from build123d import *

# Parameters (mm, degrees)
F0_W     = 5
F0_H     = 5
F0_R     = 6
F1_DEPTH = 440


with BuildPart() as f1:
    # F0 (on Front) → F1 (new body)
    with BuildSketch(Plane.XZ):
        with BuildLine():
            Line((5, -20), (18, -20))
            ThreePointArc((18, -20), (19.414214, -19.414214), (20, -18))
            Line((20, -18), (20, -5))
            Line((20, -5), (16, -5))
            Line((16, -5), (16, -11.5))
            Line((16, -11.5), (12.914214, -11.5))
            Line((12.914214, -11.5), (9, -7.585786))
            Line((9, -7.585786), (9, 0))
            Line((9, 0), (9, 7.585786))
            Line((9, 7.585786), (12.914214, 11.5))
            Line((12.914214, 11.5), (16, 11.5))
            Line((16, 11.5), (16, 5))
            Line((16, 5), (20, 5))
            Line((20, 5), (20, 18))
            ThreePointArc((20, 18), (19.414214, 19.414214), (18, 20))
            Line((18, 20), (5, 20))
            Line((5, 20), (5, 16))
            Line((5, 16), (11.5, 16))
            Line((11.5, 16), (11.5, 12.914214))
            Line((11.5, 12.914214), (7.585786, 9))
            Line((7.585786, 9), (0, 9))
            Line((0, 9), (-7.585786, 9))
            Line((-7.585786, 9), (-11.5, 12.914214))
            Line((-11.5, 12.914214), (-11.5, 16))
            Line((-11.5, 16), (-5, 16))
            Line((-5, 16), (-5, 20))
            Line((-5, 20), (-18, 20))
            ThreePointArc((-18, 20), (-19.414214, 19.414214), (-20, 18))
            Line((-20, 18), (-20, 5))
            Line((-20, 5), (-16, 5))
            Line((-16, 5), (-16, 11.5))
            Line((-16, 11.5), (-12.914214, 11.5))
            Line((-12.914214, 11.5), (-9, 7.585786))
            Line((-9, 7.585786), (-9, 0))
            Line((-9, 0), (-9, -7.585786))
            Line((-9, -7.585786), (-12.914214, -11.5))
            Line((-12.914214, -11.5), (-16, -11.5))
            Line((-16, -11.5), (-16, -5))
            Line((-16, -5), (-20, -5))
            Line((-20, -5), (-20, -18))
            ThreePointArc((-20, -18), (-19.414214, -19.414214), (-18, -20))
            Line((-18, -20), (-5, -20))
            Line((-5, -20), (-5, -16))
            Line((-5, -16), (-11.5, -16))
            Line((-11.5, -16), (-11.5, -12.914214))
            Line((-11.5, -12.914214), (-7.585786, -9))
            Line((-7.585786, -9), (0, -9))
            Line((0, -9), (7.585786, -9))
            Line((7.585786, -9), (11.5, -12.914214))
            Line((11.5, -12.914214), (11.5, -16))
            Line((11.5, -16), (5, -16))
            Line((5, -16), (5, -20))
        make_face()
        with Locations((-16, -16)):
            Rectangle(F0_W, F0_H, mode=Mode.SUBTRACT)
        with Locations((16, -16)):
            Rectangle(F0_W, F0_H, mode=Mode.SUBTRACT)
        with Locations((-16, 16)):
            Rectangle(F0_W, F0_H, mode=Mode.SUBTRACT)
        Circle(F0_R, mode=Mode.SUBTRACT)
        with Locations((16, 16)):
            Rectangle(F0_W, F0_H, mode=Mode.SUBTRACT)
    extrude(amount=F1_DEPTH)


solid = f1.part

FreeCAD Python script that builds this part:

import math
import FreeCAD as App
import Part
import Sketcher

V = App.Vector
Q = App.Units.Quantity


def add_polygon(sketch, points):
    """Adds a closed chain of lines whose ends are joined by coincident constraints."""
    first, n = sketch.GeometryCount, len(points)
    for a, b in zip(points, points[1:] + points[:1]):
        sketch.addGeometry(Part.LineSegment(App.Vector(*a, 0), App.Vector(*b, 0)), False)
    for i in range(n):
        sketch.addConstraint(Sketcher.Constraint("Coincident", first + i, 2, first + (i + 1) % n, 1))

doc = App.newDocument("Part")
params = doc.addObject("Spreadsheet::Sheet", "Params")
for row, (alias, value) in enumerate([
    ("sketch1_diameter", "12 mm"),
    ("sketch1_radius", "1.999999 mm"),
    ("sketch1_width", "13 mm"),
    ("sketch1_width2", "4 mm"),
    ("sketch1_width3", "5 mm"),
    ("pad1_length", "440 mm"),
], start=1):
    params.set(f"A{row}", alias)
    params.set(f"B{row}", "=" + value)
    params.setAlias(f"B{row}", alias)

body = doc.addObject("PartDesign::Body", "Body")

# Sketch on XZ plane
sketch1 = body.newObject("Sketcher::SketchObject", "Sketch")
sketch1.AttachmentSupport = (doc.getObject("XZ_Plane"), [""])
sketch1.MapMode = "FlatFace"
sketch1.addGeometry(Part.LineSegment(V(5, -20, 0), V(18, -20, 0)), False)  # 0
sketch1.addGeometry(Part.ArcOfCircle(Part.Circle(V(18, -18, 0), V(0, 0, 1), 2), math.radians(-90), math.radians(0)), False)  # 1
sketch1.addGeometry(Part.LineSegment(V(20, -18, 0), V(20, -5, 0)), False)  # 2
sketch1.addGeometry(Part.LineSegment(V(20, -5, 0), V(16, -5, 0)), False)  # 3
sketch1.addGeometry(Part.LineSegment(V(16, -5, 0), V(16, -11.5, 0)), False)  # 4
sketch1.addGeometry(Part.LineSegment(V(16, -11.5, 0), V(12.9, -11.5, 0)), False)  # 5
sketch1.addGeometry(Part.LineSegment(V(12.9, -11.5, 0), V(9, -7.6, 0)), False)  # 6
sketch1.addGeometry(Part.LineSegment(V(9, -7.6, 0), V(9, 7.6, 0)), False)  # 7
sketch1.addGeometry(Part.LineSegment(V(9, 7.6, 0), V(12.9, 11.5, 0)), False)  # 8
sketch1.addGeometry(Part.LineSegment(V(12.9, 11.5, 0), V(16, 11.5, 0)), False)  # 9
sketch1.addGeometry(Part.LineSegment(V(16, 11.5, 0), V(16, 5, 0)), False)  # 10
sketch1.addGeometry(Part.LineSegment(V(16, 5, 0), V(20, 5, 0)), False)  # 11
sketch1.addGeometry(Part.LineSegment(V(20, 5, 0), V(20, 18, 0)), False)  # 12
sketch1.addGeometry(Part.ArcOfCircle(Part.Circle(V(18, 18, 0), V(0, 0, 1), 2), math.radians(0), math.radians(90)), False)  # 13
sketch1.addGeometry(Part.LineSegment(V(18, 20, 0), V(5, 20, 0)), False)  # 14
sketch1.addGeometry(Part.LineSegment(V(5, 20, 0), V(5, 16, 0)), False)  # 15
sketch1.addGeometry(Part.LineSegment(V(5, 16, 0), V(11.5, 16, 0)), False)  # 16
sketch1.addGeometry(Part.LineSegment(V(11.5, 16, 0), V(11.5, 12.9, 0)), False)  # 17
sketch1.addGeometry(Part.LineSegment(V(11.5, 12.9, 0), V(7.6, 9, 0)), False)  # 18
sketch1.addGeometry(Part.LineSegment(V(7.6, 9, 0), V(-7.6, 9, 0)), False)  # 19
sketch1.addGeometry(Part.LineSegment(V(-7.6, 9, 0), V(-11.5, 12.9, 0)), False)  # 20
sketch1.addGeometry(Part.LineSegment(V(-11.5, 12.9, 0), V(-11.5, 16, 0)), False)  # 21
sketch1.addGeometry(Part.LineSegment(V(-11.5, 16, 0), V(-5, 16, 0)), False)  # 22
sketch1.addGeometry(Part.LineSegment(V(-5, 16, 0), V(-5, 20, 0)), False)  # 23
sketch1.addGeometry(Part.LineSegment(V(-5, 20, 0), V(-18, 20, 0)), False)  # 24
sketch1.addGeometry(Part.ArcOfCircle(Part.Circle(V(-18, 18, 0), V(0, 0, 1), 2), math.radians(90), math.radians(180)), False)  # 25
sketch1.addGeometry(Part.LineSegment(V(-20, 18, 0), V(-20, 5, 0)), False)  # 26
sketch1.addGeometry(Part.LineSegment(V(-20, 5, 0), V(-16, 5, 0)), False)  # 27
sketch1.addGeometry(Part.LineSegment(V(-16, 5, 0), V(-16, 11.5, 0)), False)  # 28
sketch1.addGeometry(Part.LineSegment(V(-16, 11.5, 0), V(-12.9, 11.5, 0)), False)  # 29
sketch1.addGeometry(Part.LineSegment(V(-12.9, 11.5, 0), V(-9, 7.6, 0)), False)  # 30
sketch1.addGeometry(Part.LineSegment(V(-9, 7.6, 0), V(-9, -7.6, 0)), False)  # 31
sketch1.addGeometry(Part.LineSegment(V(-9, -7.6, 0), V(-12.9, -11.5, 0)), False)  # 32
sketch1.addGeometry(Part.LineSegment(V(-12.9, -11.5, 0), V(-16, -11.5, 0)), False)  # 33
sketch1.addGeometry(Part.LineSegment(V(-16, -11.5, 0), V(-16, -5, 0)), False)  # 34
sketch1.addGeometry(Part.LineSegment(V(-16, -5, 0), V(-20, -5, 0)), False)  # 35
sketch1.addGeometry(Part.LineSegment(V(-20, -5, 0), V(-20, -18, 0)), False)  # 36
sketch1.addGeometry(Part.ArcOfCircle(Part.Circle(V(-18, -18, 0), V(0, 0, 1), 2), math.radians(180), math.radians(270)), False)  # 37
sketch1.addGeometry(Part.LineSegment(V(-18, -20, 0), V(-5, -20, 0)), False)  # 38
sketch1.addGeometry(Part.LineSegment(V(-5, -20, 0), V(-5, -16, 0)), False)  # 39
sketch1.addGeometry(Part.LineSegment(V(-5, -16, 0), V(-11.5, -16, 0)), False)  # 40
sketch1.addGeometry(Part.LineSegment(V(-11.5, -16, 0), V(-11.5, -12.9, 0)), False)  # 41
sketch1.addGeometry(Part.LineSegment(V(-11.5, -12.9, 0), V(-7.6, -9, 0)), False)  # 42
sketch1.addGeometry(Part.LineSegment(V(-7.6, -9, 0), V(7.6, -9, 0)), False)  # 43
sketch1.addGeometry(Part.LineSegment(V(7.6, -9, 0), V(11.5, -12.9, 0)), False)  # 44
sketch1.addGeometry(Part.LineSegment(V(11.5, -12.9, 0), V(11.5, -16, 0)), False)  # 45
sketch1.addGeometry(Part.LineSegment(V(11.5, -16, 0), V(5, -16, 0)), False)  # 46
sketch1.addGeometry(Part.LineSegment(V(5, -16, 0), V(5, -20, 0)), False)  # 47
add_polygon(sketch1, [(-13.5, -18.5), (-18.5, -18.5), (-18.5, -13.5), (-13.5, -13.5)])  # lines 48-51
add_polygon(sketch1, [(18.5, -18.5), (13.5, -18.5), (13.5, -13.5), (18.5, -13.5)])  # lines 52-55
add_polygon(sketch1, [(-13.5, 13.5), (-18.5, 13.5), (-18.5, 18.5), (-13.5, 18.5)])  # lines 56-59
sketch1.addGeometry(Part.Circle(V(0, 0, 0), V(0, 0, 1), 6), False)  # 60
add_polygon(sketch1, [(18.5, 13.5), (13.5, 13.5), (13.5, 18.5), (18.5, 18.5)])  # lines 61-64
sketch1.addConstraint(Sketcher.Constraint("Tangent", 0, 2, 1, 1))
sketch1.addConstraint(Sketcher.Constraint("Tangent", 1, 2, 2, 1))
sketch1.addConstraint(Sketcher.Constraint("Coincident", 2, 2, 3, 1))
sketch1.addConstraint(Sketcher.Constraint("Coincident", 3, 2, 4, 1))
sketch1.addConstraint(Sketcher.Constraint("Coincident", 4, 2, 5, 1))
sketch1.addConstraint(Sketcher.Constraint("Coincident", 5, 2, 6, 1))
sketch1.addConstraint(Sketcher.Constraint("Coincident", 6, 2, 7, 1))
sketch1.addConstraint(Sketcher.Constraint("Coincident", 7, 2, 8, 1))
sketch1.addConstraint(Sketcher.Constraint("Coincident", 8, 2, 9, 1))
sketch1.addConstraint(Sketcher.Constraint("Coincident", 9, 2, 10, 1))
sketch1.addConstraint(Sketcher.Constraint("Coincident", 10, 2, 11, 1))
sketch1.addConstraint(Sketcher.Constraint("Coincident", 11, 2, 12, 1))
sketch1.addConstraint(Sketcher.Constraint("Tangent", 12, 2, 13, 1))
sketch1.addConstraint(Sketcher.Constraint("Tangent", 13, 2, 14, 1))
sketch1.addConstraint(Sketcher.Constraint("Coincident", 14, 2, 15, 1))
sketch1.addConstraint(Sketcher.Constraint("Coincident", 15, 2, 16, 1))
sketch1.addConstraint(Sketcher.Constraint("Coincident", 16, 2, 17, 1))
sketch1.addConstraint(Sketcher.Constraint("Coincident", 17, 2, 18, 1))
sketch1.addConstraint(Sketcher.Constraint("Coincident", 18, 2, 19, 1))
sketch1.addConstraint(Sketcher.Constraint("Coincident", 19, 2, 20, 1))
sketch1.addConstraint(Sketcher.Constraint("Coincident", 20, 2, 21, 1))
sketch1.addConstraint(Sketcher.Constraint("Coincident", 21, 2, 22, 1))
sketch1.addConstraint(Sketcher.Constraint("Coincident", 22, 2, 23, 1))
sketch1.addConstraint(Sketcher.Constraint("Coincident", 23, 2, 24, 1))
sketch1.addConstraint(Sketcher.Constraint("Tangent", 24, 2, 25, 1))
sketch1.addConstraint(Sketcher.Constraint("Tangent", 25, 2, 26, 1))
sketch1.addConstraint(Sketcher.Constraint("Coincident", 26, 2, 27, 1))
sketch1.addConstraint(Sketcher.Constraint("Coincident", 27, 2, 28, 1))
sketch1.addConstraint(Sketcher.Constraint("Coincident", 28, 2, 29, 1))
sketch1.addConstraint(Sketcher.Constraint("Coincident", 29, 2, 30, 1))
sketch1.addConstraint(Sketcher.Constraint("Coincident", 30, 2, 31, 1))
sketch1.addConstraint(Sketcher.Constraint("Coincident", 31, 2, 32, 1))
sketch1.addConstraint(Sketcher.Constraint("Coincident", 32, 2, 33, 1))
sketch1.addConstraint(Sketcher.Constraint("Coincident", 33, 2, 34, 1))
sketch1.addConstraint(Sketcher.Constraint("Coincident", 34, 2, 35, 1))
sketch1.addConstraint(Sketcher.Constraint("Coincident", 35, 2, 36, 1))
sketch1.addConstraint(Sketcher.Constraint("Tangent", 36, 2, 37, 1))
sketch1.addConstraint(Sketcher.Constraint("Tangent", 37, 2, 38, 1))
sketch1.addConstraint(Sketcher.Constraint("Coincident", 38, 2, 39, 1))
sketch1.addConstraint(Sketcher.Constraint("Coincident", 39, 2, 40, 1))
sketch1.addConstraint(Sketcher.Constraint("Coincident", 40, 2, 41, 1))
sketch1.addConstraint(Sketcher.Constraint("Coincident", 41, 2, 42, 1))
sketch1.addConstraint(Sketcher.Constraint("Coincident", 42, 2, 43, 1))
sketch1.addConstraint(Sketcher.Constraint("Coincident", 43, 2, 44, 1))
sketch1.addConstraint(Sketcher.Constraint("Coincident", 44, 2, 45, 1))
sketch1.addConstraint(Sketcher.Constraint("Coincident", 45, 2, 46, 1))
sketch1.addConstraint(Sketcher.Constraint("Coincident", 46, 2, 47, 1))
sketch1.addConstraint(Sketcher.Constraint("Coincident", 47, 2, 0, 1))
sketch1.addConstraint(Sketcher.Constraint("Horizontal", 0))
sketch1.addConstraint(Sketcher.Constraint("Vertical", 2))
sketch1.addConstraint(Sketcher.Constraint("Horizontal", 3))
sketch1.addConstraint(Sketcher.Constraint("Vertical", 4))
sketch1.addConstraint(Sketcher.Constraint("Horizontal", 5))
sketch1.addConstraint(Sketcher.Constraint("Vertical", 7))
sketch1.addConstraint(Sketcher.Constraint("Horizontal", 9))
sketch1.addConstraint(Sketcher.Constraint("Vertical", 10))
sketch1.addConstraint(Sketcher.Constraint("Horizontal", 11))
sketch1.addConstraint(Sketcher.Constraint("Vertical", 12))
sketch1.addConstraint(Sketcher.Constraint("Horizontal", 14))
sketch1.addConstraint(Sketcher.Constraint("Vertical", 15))
sketch1.addConstraint(Sketcher.Constraint("Horizontal", 16))
sketch1.addConstraint(Sketcher.Constraint("Vertical", 17))
sketch1.addConstraint(Sketcher.Constraint("Horizontal", 19))
sketch1.addConstraint(Sketcher.Constraint("Vertical", 21))
sketch1.addConstraint(Sketcher.Constraint("Horizontal", 22))
sketch1.addConstraint(Sketcher.Constraint("Vertical", 23))
sketch1.addConstraint(Sketcher.Constraint("Horizontal", 24))
sketch1.addConstraint(Sketcher.Constraint("Vertical", 26))
sketch1.addConstraint(Sketcher.Constraint("Horizontal", 27))
sketch1.addConstraint(Sketcher.Constraint("Vertical", 28))
sketch1.addConstraint(Sketcher.Constraint("Horizontal", 29))
sketch1.addConstraint(Sketcher.Constraint("Vertical", 31))
sketch1.addConstraint(Sketcher.Constraint("Horizontal", 33))
sketch1.addConstraint(Sketcher.Constraint("Vertical", 34))
sketch1.addConstraint(Sketcher.Constraint("Horizontal", 35))
sketch1.addConstraint(Sketcher.Constraint("Vertical", 36))
sketch1.addConstraint(Sketcher.Constraint("Horizontal", 38))
sketch1.addConstraint(Sketcher.Constraint("Vertical", 39))
sketch1.addConstraint(Sketcher.Constraint("Horizontal", 40))
sketch1.addConstraint(Sketcher.Constraint("Vertical", 41))
sketch1.addConstraint(Sketcher.Constraint("Horizontal", 43))
sketch1.addConstraint(Sketcher.Constraint("Vertical", 45))
sketch1.addConstraint(Sketcher.Constraint("Horizontal", 46))
sketch1.addConstraint(Sketcher.Constraint("Vertical", 47))
sketch1.addConstraint(Sketcher.Constraint("Horizontal", 48))
sketch1.addConstraint(Sketcher.Constraint("Vertical", 49))
sketch1.addConstraint(Sketcher.Constraint("Horizontal", 50))
sketch1.addConstraint(Sketcher.Constraint("Vertical", 51))
sketch1.addConstraint(Sketcher.Constraint("Horizontal", 52))
sketch1.addConstraint(Sketcher.Constraint("Vertical", 53))
sketch1.addConstraint(Sketcher.Constraint("Horizontal", 54))
sketch1.addConstraint(Sketcher.Constraint("Vertical", 55))
sketch1.addConstraint(Sketcher.Constraint("Horizontal", 56))
sketch1.addConstraint(Sketcher.Constraint("Vertical", 57))
sketch1.addConstraint(Sketcher.Constraint("Horizontal", 58))
sketch1.addConstraint(Sketcher.Constraint("Vertical", 59))
sketch1.addConstraint(Sketcher.Constraint("Horizontal", 61))
sketch1.addConstraint(Sketcher.Constraint("Vertical", 62))
sketch1.addConstraint(Sketcher.Constraint("Horizontal", 63))
sketch1.addConstraint(Sketcher.Constraint("Vertical", 64))
sketch1.addConstraint(Sketcher.Constraint("Coincident", 60, 3, -1, 1))
sketch1.addConstraint(Sketcher.Constraint("Equal", 1, 13))
sketch1.addConstraint(Sketcher.Constraint("Equal", 13, 25))
sketch1.addConstraint(Sketcher.Constraint("Equal", 25, 37))
sketch1.addConstraint(Sketcher.Constraint("Symmetric", 1, 3, 25, 3, -1, 1))
sketch1.addConstraint(Sketcher.Constraint("Symmetric", 13, 3, 37, 3, -1, 1))
sketch1.addConstraint(Sketcher.Constraint("Symmetric", 3, 2, 27, 2, -1, 1))
sketch1.addConstraint(Sketcher.Constraint("Symmetric", 5, 2, 29, 2, -1, 1))
sketch1.addConstraint(Sketcher.Constraint("Symmetric", 6, 2, 30, 2, -1, 1))
sketch1.addConstraint(Sketcher.Constraint("Symmetric", 8, 2, 32, 2, -1, 1))
sketch1.addConstraint(Sketcher.Constraint("Symmetric", 10, 2, 34, 2, -1, 1))
sketch1.addConstraint(Sketcher.Constraint("Symmetric", 15, 2, 39, 2, -1, 1))
sketch1.addConstraint(Sketcher.Constraint("Symmetric", 17, 2, 41, 2, -1, 1))
sketch1.addConstraint(Sketcher.Constraint("Symmetric", 18, 2, 42, 2, -1, 1))
sketch1.addConstraint(Sketcher.Constraint("Symmetric", 20, 2, 44, 2, -1, 1))
sketch1.addConstraint(Sketcher.Constraint("Symmetric", 22, 2, 46, 2, -1, 1))
sketch1.addConstraint(Sketcher.Constraint("Symmetric", 54, 2, 56, 2, -1, 1))
sketch1.addConstraint(Sketcher.Constraint("Symmetric", 52, 2, 58, 2, -1, 1))
sketch1.addConstraint(Sketcher.Constraint("Symmetric", 50, 2, 61, 2, -1, 1))
sketch1.addConstraint(Sketcher.Constraint("Symmetric", 48, 2, 63, 2, -1, 1))
sketch1.addConstraint(Sketcher.Constraint("Symmetric", 13, 3, 25, 3, -2))
sketch1.addConstraint(Sketcher.Constraint("Symmetric", 17, 2, 20, 2, -2))
sketch1.addConstraint(Sketcher.Constraint("Symmetric", 15, 2, 22, 2, -2))
sketch1.addConstraint(Sketcher.Constraint("Symmetric", 10, 2, 27, 2, -2))
sketch1.addConstraint(Sketcher.Constraint("Symmetric", 8, 2, 29, 2, -2))
sketch1.addConstraint(Sketcher.Constraint("Symmetric", 51, 2, 52, 2, -2))
sketch1.addConstraint(Sketcher.Constraint("Symmetric", 49, 2, 54, 2, -2))
sketch1.addConstraint(Sketcher.Constraint("Perpendicular", 6, 8))
sketch1.addConstraint(Sketcher.Constraint("Parallel", 8, 18))
sketch1.addConstraint(Sketcher.Constraint("Perpendicular", 18, 20))
sketch1.addConstraint(Sketcher.Constraint("Perpendicular", 30, 32))
sketch1.addConstraint(Sketcher.Constraint("Perpendicular", 42, 44))
sketch1.addConstraint(Sketcher.Constraint("Horizontal", 7, 2, 30, 2))
sketch1.addConstraint(Sketcher.Constraint("Equal", 38, 2))
sketch1.addConstraint(Sketcher.Constraint("Equal", 46, 4))
sketch1.addConstraint(Sketcher.Constraint("Equal", 43, 7))
sketch1.addConstraint(Sketcher.Constraint("Equal", 35, 15))
sketch1.addConstraint(Sketcher.Constraint("Equal", 33, 17))
sketch1.addConstraint(Sketcher.Constraint("Equal", 63, 49))
sketch1.addConstraint(Sketcher.Constraint("Equal", 8, 18))
sketch1.addConstraint(Sketcher.Constraint("Diameter", 60, Q("12 mm")))
sketch1.addConstraint(Sketcher.Constraint("Radius", 1, Q("1.999999 mm")))
sketch1.addConstraint(Sketcher.Constraint("DistanceX", 0, 1, 0, 2, Q("13 mm")))
sketch1.addConstraint(Sketcher.Constraint("DistanceX", 3, 2, 3, 1, Q("4 mm")))
sketch1.addConstraint(Sketcher.Constraint("DistanceX", 48, 2, 48, 1, Q("5 mm")))
sketch1.addConstraint(Sketcher.Constraint("DistanceX", 16, 1, 16, 2, Q("6.5 mm")))
sketch1.addConstraint(Sketcher.Constraint("DistanceX", -1, 1, 1, 3, Q("18.000001 mm")))
sketch1.addConstraint(Sketcher.Constraint("DistanceX", -1, 1, 6, 2, Q("9 mm")))
sketch1.addConstraint(Sketcher.Constraint("DistanceX", 48, 2, -1, 1, Q("18.5 mm")))
sketch1.addConstraint(Sketcher.Constraint("DistanceY", 48, 2, -1, 1, Q("18.5 mm")))
sketch1.addConstraint(Sketcher.Constraint("DistanceX", 5, 2, 5, 1, Q("3.085786 mm")))
sketch1.setExpression("Constraints[156]", "Params.sketch1_diameter")
sketch1.setExpression("Constraints[157]", "Params.sketch1_radius")
sketch1.setExpression("Constraints[158]", "Params.sketch1_width")
sketch1.setExpression("Constraints[159]", "Params.sketch1_width2")
sketch1.setExpression("Constraints[160]", "Params.sketch1_width3")
pad1 = body.newObject("PartDesign::Pad", "Pad")
pad1.Profile = sketch1
pad1.setExpression("Length", "Params.pad1_length")

doc.recompute()
